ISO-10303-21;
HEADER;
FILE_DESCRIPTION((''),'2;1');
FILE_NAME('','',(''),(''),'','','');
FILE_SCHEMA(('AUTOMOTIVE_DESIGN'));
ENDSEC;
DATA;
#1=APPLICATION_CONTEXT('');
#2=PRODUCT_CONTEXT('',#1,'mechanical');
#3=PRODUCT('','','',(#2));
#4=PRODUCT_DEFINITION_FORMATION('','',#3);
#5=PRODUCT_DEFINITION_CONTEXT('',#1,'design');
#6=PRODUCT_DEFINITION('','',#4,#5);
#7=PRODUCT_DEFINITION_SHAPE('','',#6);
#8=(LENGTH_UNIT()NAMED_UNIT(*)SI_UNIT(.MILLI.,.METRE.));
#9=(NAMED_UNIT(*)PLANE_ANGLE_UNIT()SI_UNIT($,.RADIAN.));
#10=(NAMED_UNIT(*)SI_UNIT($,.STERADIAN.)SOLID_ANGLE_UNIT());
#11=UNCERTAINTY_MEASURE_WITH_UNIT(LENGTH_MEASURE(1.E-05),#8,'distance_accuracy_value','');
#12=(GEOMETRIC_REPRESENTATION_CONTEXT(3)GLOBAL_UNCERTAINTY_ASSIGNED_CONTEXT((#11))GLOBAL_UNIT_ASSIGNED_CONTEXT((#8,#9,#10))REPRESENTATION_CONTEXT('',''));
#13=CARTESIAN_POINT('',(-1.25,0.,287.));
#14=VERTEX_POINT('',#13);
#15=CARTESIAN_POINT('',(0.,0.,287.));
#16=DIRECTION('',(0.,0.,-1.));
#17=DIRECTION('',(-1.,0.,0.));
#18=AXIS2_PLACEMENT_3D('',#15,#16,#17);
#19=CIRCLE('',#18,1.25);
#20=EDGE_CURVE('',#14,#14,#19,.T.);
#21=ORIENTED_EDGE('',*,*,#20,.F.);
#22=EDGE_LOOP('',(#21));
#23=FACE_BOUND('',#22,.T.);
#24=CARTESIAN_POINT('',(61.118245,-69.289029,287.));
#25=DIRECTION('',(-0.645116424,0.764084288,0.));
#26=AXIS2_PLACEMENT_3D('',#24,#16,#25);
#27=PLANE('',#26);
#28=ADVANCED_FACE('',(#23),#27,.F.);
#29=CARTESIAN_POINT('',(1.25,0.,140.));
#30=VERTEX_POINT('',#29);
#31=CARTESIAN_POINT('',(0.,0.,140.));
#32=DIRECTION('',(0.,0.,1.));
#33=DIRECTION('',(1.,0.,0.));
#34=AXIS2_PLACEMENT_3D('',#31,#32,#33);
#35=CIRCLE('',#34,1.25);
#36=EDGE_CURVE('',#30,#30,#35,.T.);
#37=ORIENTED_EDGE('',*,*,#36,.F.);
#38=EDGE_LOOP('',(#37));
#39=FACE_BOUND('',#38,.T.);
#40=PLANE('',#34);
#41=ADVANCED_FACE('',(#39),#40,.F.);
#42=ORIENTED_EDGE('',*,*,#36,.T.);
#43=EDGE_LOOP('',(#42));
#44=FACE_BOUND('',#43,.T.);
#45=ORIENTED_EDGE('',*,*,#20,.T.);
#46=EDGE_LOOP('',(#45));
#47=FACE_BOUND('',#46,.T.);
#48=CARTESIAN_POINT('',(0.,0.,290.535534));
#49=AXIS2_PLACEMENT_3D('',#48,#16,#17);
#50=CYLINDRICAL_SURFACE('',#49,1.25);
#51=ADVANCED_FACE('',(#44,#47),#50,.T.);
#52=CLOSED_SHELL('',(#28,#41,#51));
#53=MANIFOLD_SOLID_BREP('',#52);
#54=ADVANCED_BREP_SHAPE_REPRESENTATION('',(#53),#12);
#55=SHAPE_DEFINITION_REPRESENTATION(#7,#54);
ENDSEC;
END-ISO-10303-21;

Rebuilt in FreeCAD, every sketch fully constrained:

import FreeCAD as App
import Part
import Sketcher

V = App.Vector
Q = App.Units.Quantity

doc = App.newDocument("Part")
body = doc.addObject("PartDesign::Body", "Body")

# Sketch on XY plane
sketch1 = doc.addObject("Sketcher::SketchObject", "Sketch")
body.addObject(sketch1)
sketch1.AttachmentSupport = (doc.XY_Plane, [""])
sketch1.MapMode = "FlatFace"
sketch1.AttachmentOffset = App.Placement(V(0, 0, 140), App.Rotation())
sketch1.addGeometry(Part.Circle(V(0, 0, 0), V(0, 0, 1), 1.2), False)
sketch1.addConstraint(Sketcher.Constraint("Coincident", 0, 3, -1, 1))
sketch1.addConstraint(Sketcher.Constraint("Diameter", 0, Q("2.5 mm")))
pad1 = doc.addObject("PartDesign::Pad", "Pad")
body.addObject(pad1)
pad1.Profile = sketch1
pad1.Length = 147

doc.recompute()
